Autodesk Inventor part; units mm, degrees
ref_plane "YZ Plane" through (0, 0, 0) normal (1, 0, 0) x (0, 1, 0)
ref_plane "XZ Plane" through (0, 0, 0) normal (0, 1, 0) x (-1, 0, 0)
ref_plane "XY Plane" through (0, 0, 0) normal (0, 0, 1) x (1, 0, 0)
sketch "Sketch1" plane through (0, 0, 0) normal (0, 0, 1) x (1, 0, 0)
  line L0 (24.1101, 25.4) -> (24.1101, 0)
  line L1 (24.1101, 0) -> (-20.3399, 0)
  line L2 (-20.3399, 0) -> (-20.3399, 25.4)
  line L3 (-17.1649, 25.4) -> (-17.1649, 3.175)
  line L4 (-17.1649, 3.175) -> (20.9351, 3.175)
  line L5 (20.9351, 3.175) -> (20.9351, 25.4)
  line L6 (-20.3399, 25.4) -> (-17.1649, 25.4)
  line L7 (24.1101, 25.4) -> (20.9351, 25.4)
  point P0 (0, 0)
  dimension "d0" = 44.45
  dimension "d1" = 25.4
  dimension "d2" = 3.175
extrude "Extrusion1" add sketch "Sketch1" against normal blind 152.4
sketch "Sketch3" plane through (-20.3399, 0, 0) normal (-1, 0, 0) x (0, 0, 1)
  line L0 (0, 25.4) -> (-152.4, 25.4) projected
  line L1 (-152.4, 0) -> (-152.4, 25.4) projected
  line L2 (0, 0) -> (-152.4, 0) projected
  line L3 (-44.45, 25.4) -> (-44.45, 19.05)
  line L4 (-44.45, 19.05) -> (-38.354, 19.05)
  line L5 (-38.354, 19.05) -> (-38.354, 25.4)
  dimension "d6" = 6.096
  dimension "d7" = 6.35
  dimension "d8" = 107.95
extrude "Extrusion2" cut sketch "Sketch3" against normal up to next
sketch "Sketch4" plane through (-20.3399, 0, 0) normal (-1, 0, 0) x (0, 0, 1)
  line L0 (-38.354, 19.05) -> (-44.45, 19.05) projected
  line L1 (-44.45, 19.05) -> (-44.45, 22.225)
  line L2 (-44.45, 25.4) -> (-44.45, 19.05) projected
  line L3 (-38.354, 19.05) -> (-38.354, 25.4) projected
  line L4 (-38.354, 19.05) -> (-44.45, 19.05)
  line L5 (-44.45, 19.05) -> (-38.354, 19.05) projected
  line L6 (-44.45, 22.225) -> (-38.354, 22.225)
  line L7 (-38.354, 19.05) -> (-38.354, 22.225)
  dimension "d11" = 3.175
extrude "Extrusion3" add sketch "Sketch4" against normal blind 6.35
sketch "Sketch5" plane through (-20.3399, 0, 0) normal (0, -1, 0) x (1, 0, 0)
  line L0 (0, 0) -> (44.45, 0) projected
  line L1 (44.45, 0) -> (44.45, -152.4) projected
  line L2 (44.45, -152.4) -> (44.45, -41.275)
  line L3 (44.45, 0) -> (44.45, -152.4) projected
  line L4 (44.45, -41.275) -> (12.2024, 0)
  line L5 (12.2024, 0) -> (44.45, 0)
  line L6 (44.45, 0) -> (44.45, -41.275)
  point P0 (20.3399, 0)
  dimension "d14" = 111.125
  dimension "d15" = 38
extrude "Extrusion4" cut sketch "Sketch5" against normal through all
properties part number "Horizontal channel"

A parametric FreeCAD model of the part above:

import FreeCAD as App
import Part
import Sketcher
from FreeCAD import Vector
Q = App.Units.Quantity


def add_polygon(sketch, points):
    """Adds a closed chain of lines whose ends are joined by coincident constraints."""
    first, n = sketch.GeometryCount, len(points)
    for a, b in zip(points, points[1:] + points[:1]):
        sketch.addGeometry(Part.LineSegment(App.Vector(*a, 0), App.Vector(*b, 0)), False)
    for i in range(n):
        sketch.addConstraint(Sketcher.Constraint("Coincident", first + i, 2, first + (i + 1) % n, 1))

doc = App.newDocument("Part")
body = doc.addObject("PartDesign::Body", "Body")

# Sketch on XY plane
sketch1 = body.newObject("Sketcher::SketchObject", "Sketch")
sketch1.AttachmentSupport = (doc.getObject("XY_Plane"), [""])
sketch1.MapMode = "FlatFace"
add_polygon(sketch1, [(24.1, 0), (24.1, 25.4), (20.9, 25.4), (20.9, 3.2), (-17.2, 3.2), (-17.2, 25.4), (-20.3, 25.4), (-20.3, 0)])  # lines 0-7
sketch1.addConstraint([
    Sketcher.Constraint("Vertical", 0),
    Sketcher.Constraint("Horizontal", 1),
    Sketcher.Constraint("Vertical", 2),
    Sketcher.Constraint("Horizontal", 3),
    Sketcher.Constraint("Vertical", 4),
    Sketcher.Constraint("Horizontal", 5),
    Sketcher.Constraint("Vertical", 6),
    Sketcher.Constraint("Horizontal", 7),
    Sketcher.Constraint("PointOnObject", 6, 2, -1),
    Sketcher.Constraint("Horizontal", 1, 2, 4, 2),
    Sketcher.Constraint("Equal", 1, 5),
    Sketcher.Constraint("DistanceY", 0, 1, 0, 2, Q("1 in")),
    Sketcher.Constraint("DistanceX", 7, 1, 7, 2, Q("1.75 in")),
    Sketcher.Constraint("DistanceX", 1, 2, 1, 1, Q("0.125 in")),
    Sketcher.Constraint("DistanceY", -1, 1, 2, 2, Q("0.125 in")),
    Sketcher.Constraint("DistanceX", -1, 1, 0, 2, Q("24.11 mm")),
])
pad1 = body.newObject("PartDesign::Pad", "Pad")
pad1.Profile = sketch1
pad1.Length = Q("6 in")
pad1.Reversed = True

# Sketch on YZ plane
sketch2 = body.newObject("Sketcher::SketchObject", "Sketch001")
sketch2.AttachmentSupport = (doc.getObject("YZ_Plane"), [""])
sketch2.MapMode = "FlatFace"
sketch2.AttachmentOffset = App.Placement(Vector(0, 0, -20.3399), App.Rotation())
add_polygon(sketch2, [(19, -38), (25, -38), (25, -44), (19, -44)])  # lines 0-3
sketch2.addConstraint([
    Sketcher.Constraint("Horizontal", 0),
    Sketcher.Constraint("Vertical", 1),
    Sketcher.Constraint("Horizontal", 2),
    Sketcher.Constraint("Vertical", 3),
    Sketcher.Constraint("DistanceX", 0, 1, 0, 2, Q("0.25 in")),
    Sketcher.Constraint("DistanceY", 1, 2, 1, 1, Q("0.24 in")),
    Sketcher.Constraint("DistanceX", -1, 1, 0, 2, Q("1 in")),
    Sketcher.Constraint("DistanceY", 0, 2, -1, 1, Q("1.51 in")),
])
pocket1 = body.newObject("PartDesign::Pocket", "Pocket")
pocket1.Profile = sketch2
pocket1.Type = "UpToFirst"
pocket1.Reversed = True

# Sketch on YZ plane
sketch3 = body.newObject("Sketcher::SketchObject", "Sketch002")
sketch3.AttachmentSupport = (doc.getObject("YZ_Plane"), [""])
sketch3.MapMode = "FlatFace"
sketch3.AttachmentOffset = App.Placement(Vector(0, 0, -20.3399), App.Rotation())
add_polygon(sketch3, [(19.1, -44.5), (19.1, -38.4), (22.2, -38.4), (22.2, -44.5)])  # lines 0-3
sketch3.addConstraint([
    Sketcher.Constraint("Vertical", 0),
    Sketcher.Constraint("Horizontal", 1),
    Sketcher.Constraint("Vertical", 2),
    Sketcher.Constraint("Horizontal", 3),
    Sketcher.Constraint("DistanceX", 1, 1, 1, 2, Q("0.125 in")),
    Sketcher.Constraint("DistanceY", 0, 1, 0, 2, Q("0.24 in")),
    Sketcher.Constraint("DistanceX", -1, 1, 0, 2, Q("0.75 in")),
    Sketcher.Constraint("DistanceY", 0, 2, -1, 1, Q("1.51 in")),
])
pad2 = body.newObject("PartDesign::Pad", "Pad001")
pad2.Profile = sketch3
pad2.Length = Q("0.25 in")

# Sketch on XZ plane
sketch4 = body.newObject("Sketcher::SketchObject", "Sketch003")
sketch4.AttachmentSupport = (doc.getObject("XZ_Plane"), [""])
sketch4.MapMode = "FlatFace"
add_polygon(sketch4, [(24, 0), (-8, 0), (24, -41)])  # lines 0-2
sketch4.addConstraint([
    Sketcher.Constraint("Horizontal", 0),
    Sketcher.Constraint("Vertical", 2),
    Sketcher.Constraint("PointOnObject", 0, 2, -1),
    Sketcher.Constraint("Angle", 1, Q("-52 deg")),
    Sketcher.Constraint("DistanceY", 2, 1, 2, 2, Q("1.625 in")),
    Sketcher.Constraint("DistanceX", 0, 2, -1, 1, Q("8.1375 mm")),
])
pocket2 = body.newObject("PartDesign::Pocket", "Pocket001")
pocket2.Profile = sketch4
pocket2.Type = "ThroughAll"

doc.recompute()
